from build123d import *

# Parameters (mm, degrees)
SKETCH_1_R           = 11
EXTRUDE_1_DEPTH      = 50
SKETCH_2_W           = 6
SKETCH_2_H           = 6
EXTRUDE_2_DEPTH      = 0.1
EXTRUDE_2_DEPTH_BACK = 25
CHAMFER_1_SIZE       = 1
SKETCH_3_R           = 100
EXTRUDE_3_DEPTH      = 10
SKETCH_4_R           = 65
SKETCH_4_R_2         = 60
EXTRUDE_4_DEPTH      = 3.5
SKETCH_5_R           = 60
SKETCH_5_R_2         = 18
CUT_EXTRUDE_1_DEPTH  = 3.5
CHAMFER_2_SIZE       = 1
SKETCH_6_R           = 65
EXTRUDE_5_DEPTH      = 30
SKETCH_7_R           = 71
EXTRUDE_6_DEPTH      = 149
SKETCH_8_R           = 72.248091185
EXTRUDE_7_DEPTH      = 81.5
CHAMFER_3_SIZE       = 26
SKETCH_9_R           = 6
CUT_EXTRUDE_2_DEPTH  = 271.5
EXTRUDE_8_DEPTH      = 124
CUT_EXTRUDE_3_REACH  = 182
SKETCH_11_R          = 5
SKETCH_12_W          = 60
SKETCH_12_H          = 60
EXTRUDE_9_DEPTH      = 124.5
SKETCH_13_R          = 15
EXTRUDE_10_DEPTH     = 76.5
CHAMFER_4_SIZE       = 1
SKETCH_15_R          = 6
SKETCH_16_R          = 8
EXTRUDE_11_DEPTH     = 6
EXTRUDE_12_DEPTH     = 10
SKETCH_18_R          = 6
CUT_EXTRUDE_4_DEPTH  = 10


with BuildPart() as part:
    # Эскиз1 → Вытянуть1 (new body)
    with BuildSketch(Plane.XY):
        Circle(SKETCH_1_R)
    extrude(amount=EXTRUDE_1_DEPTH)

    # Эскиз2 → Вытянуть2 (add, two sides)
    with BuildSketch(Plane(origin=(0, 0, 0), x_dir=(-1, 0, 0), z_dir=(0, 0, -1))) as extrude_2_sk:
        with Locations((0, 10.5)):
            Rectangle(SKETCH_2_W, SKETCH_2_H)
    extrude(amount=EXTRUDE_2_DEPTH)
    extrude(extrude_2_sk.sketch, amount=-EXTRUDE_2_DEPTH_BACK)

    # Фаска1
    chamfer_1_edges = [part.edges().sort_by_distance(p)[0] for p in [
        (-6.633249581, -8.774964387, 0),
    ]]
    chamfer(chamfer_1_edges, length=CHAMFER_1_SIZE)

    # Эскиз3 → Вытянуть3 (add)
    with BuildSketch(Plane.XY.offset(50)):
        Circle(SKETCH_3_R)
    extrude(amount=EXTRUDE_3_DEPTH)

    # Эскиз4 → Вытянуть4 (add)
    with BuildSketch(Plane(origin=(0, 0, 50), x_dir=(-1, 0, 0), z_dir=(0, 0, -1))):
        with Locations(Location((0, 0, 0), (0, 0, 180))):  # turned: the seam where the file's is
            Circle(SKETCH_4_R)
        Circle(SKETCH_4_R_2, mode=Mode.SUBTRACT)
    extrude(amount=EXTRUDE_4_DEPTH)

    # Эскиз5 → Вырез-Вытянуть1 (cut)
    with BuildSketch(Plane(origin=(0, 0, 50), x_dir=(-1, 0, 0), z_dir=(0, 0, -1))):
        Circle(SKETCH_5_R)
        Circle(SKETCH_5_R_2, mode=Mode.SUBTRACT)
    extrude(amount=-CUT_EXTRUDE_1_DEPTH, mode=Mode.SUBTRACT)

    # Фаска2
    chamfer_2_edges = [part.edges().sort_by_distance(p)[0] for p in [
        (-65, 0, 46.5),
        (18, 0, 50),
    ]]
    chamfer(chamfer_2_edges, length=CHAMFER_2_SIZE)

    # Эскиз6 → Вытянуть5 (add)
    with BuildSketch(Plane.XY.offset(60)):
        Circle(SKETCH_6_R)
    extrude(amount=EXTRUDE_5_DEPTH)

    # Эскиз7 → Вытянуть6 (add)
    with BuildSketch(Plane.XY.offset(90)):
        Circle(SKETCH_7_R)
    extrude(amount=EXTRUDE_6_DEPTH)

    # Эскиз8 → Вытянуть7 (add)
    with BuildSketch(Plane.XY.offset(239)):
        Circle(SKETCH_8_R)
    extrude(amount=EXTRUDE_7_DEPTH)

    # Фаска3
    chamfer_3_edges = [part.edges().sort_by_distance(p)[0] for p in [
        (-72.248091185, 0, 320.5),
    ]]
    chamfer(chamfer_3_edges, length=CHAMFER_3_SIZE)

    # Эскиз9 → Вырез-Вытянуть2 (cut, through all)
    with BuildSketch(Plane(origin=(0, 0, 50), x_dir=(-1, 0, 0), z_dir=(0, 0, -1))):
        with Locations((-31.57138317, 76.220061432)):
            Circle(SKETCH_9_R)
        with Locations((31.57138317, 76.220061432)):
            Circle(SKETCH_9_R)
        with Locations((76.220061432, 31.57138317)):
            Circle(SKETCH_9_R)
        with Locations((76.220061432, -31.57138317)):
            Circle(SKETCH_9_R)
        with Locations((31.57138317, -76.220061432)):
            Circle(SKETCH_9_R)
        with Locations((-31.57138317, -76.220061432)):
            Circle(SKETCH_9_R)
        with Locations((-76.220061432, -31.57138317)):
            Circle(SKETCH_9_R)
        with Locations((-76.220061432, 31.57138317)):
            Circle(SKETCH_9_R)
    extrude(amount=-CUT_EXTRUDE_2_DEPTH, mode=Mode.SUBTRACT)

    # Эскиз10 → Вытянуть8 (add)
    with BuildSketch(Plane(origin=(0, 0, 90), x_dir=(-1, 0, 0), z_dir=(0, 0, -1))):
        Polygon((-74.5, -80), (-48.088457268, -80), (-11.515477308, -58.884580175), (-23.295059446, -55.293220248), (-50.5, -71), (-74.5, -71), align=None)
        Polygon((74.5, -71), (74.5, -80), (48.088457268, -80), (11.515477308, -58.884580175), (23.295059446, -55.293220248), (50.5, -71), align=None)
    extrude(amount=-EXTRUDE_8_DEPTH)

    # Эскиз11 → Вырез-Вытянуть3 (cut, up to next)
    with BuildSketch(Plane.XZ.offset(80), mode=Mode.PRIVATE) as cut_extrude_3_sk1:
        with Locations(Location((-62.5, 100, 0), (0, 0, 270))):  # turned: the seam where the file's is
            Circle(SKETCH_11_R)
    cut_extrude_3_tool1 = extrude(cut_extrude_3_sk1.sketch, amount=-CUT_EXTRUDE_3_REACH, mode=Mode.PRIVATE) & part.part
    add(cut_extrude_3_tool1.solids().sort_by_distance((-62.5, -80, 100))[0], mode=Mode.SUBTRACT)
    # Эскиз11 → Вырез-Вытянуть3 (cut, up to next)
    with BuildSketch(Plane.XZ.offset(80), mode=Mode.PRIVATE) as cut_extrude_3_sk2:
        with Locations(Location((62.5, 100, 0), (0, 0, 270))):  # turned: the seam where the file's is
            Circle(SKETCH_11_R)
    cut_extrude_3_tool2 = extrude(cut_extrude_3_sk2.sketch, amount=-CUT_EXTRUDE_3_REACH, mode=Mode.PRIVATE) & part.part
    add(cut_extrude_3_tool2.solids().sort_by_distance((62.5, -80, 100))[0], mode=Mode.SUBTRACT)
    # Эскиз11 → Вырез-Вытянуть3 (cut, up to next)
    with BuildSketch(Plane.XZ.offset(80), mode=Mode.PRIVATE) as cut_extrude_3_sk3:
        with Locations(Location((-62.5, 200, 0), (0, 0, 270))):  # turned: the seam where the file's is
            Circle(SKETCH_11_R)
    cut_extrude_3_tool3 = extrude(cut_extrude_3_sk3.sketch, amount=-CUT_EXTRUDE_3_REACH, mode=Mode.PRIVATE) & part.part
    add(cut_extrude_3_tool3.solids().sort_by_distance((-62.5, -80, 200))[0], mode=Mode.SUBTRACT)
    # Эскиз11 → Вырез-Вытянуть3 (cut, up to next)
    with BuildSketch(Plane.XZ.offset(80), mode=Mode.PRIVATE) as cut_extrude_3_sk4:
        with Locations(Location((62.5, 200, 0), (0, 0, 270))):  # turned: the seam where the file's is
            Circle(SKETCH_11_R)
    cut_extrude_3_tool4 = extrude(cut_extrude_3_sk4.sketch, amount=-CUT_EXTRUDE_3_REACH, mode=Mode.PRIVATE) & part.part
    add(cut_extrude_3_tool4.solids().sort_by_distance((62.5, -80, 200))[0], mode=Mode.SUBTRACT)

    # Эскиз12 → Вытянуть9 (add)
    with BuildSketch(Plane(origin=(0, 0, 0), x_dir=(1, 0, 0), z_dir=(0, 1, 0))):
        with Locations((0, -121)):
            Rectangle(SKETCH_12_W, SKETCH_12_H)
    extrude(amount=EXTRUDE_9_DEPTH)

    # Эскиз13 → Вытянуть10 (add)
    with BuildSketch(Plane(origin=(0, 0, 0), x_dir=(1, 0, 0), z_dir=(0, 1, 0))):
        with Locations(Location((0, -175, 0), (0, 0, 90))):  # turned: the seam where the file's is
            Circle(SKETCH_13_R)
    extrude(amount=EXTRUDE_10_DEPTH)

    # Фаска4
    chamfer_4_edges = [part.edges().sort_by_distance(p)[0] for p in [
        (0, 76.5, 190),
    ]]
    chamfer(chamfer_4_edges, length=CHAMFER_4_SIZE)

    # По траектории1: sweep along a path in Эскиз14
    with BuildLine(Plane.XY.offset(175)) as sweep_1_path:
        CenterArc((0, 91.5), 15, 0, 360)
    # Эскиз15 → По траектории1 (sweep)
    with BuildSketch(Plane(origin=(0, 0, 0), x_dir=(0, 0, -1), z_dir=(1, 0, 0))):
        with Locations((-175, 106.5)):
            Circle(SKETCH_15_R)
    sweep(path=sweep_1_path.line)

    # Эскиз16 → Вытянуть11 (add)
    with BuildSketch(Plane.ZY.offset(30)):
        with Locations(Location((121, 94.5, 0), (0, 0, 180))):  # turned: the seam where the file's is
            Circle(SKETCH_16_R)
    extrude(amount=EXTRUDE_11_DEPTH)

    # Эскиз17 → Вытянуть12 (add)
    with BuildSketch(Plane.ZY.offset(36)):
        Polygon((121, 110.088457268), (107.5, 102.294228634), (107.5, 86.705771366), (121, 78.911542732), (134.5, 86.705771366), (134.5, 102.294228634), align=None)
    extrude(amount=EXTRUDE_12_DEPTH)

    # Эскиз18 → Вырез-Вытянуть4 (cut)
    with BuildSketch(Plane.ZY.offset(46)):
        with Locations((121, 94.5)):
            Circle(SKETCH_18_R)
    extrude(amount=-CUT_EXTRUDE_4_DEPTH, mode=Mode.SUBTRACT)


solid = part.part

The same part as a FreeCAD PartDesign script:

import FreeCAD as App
import Part
import Sketcher
from FreeCAD import Vector
Q = App.Units.Quantity


def edges_at(feature, points):
    """Names of the edges that pass closest to the given points."""
    edges = feature.Shape.Edges
    near = lambda p: min(range(len(edges)), key=lambda i: edges[i].distToShape(Part.Vertex(*p))[0])
    return sorted({f"Edge{near(p) + 1}" for p in points})

doc = App.newDocument("Part")
params = doc.addObject("Spreadsheet::Sheet", "Params")
for row, (alias, value) in enumerate([
    ("sketch1_diameter", "22 mm"),
    ("pad1_length", "50 mm"),
    ("sketch2_width", "6 mm"),
    ("pad2_length", "0.1 mm"),
    ("pad2_length2", "25 mm"),
    ("chamfer_size", "1 mm"),
    ("sketch3_diameter", "200 mm"),
    ("pad3_length", "10 mm"),
    ("sketch4_diameter", "130 mm"),
    ("sketch4_diameter2", "120 mm"),
    ("pad4_length", "3.5 mm"),
    ("sketch5_diameter", "120 mm"),
    ("sketch5_diameter2", "36 mm"),
    ("pocket1_length", "3.5 mm"),
    ("chamfer2_size", "1 mm"),
    ("sketch6_diameter", "130 mm"),
    ("pad5_length", "30 mm"),
    ("sketch7_diameter", "142 mm"),
    ("pad6_length", "149 mm"),
    ("pad7_length", "81.5 mm"),
    ("chamfer3_size", "26 mm"),
    ("sketch9_diameter", "12 mm"),
    ("sketch10_width", "24 mm"),
    ("sketch10_height", "9 mm"),
    ("pad8_length", "124 mm"),
    ("sketch11_diameter", "10 mm"),
    ("sketch12_diameter", "10 mm"),
    ("sketch13_diameter", "10 mm"),
    ("sketch14_diameter", "10 mm"),
    ("sketch15_width", "60 mm"),
    ("pad9_length", "124.5 mm"),
    ("sketch16_diameter", "30 mm"),
    ("pad10_length", "76.5 mm"),
    ("chamfer4_size", "1 mm"),
    ("sketch17_diameter", "12 mm"),
    ("sketch18_diameter", "30 mm"),
    ("sketch19_diameter", "16 mm"),
    ("pad11_length", "6 mm"),
    ("pad12_length", "10 mm"),
    ("sketch21_diameter", "12 mm"),
    ("pocket7_length", "10 mm"),
], start=1):
    params.set(f"A{row}", alias)
    params.set(f"B{row}", "=" + value)
    params.setAlias(f"B{row}", alias)

body = doc.addObject("PartDesign::Body", "Body")

sketch1 = body.newObject("Sketcher::SketchObject", "Sketch")
sketch1.AttachmentSupport = (doc.getObject("XY_Plane"), [""])
sketch1.MapMode = "FlatFace"
sketch1.addGeometry(Part.Circle(Vector(0, 0, 0), Vector(0, 0, 1), 11), False)
sketch1.addConstraint(Sketcher.Constraint("Coincident", 0, 3, -1, 1))
sketch1.addConstraint(Sketcher.Constraint("Diameter", 0, 22.0))
sketch1.setExpression("Constraints[1]", "Params.sketch1_diameter")
pad1 = body.newObject("PartDesign::Pad", "Pad")
pad1.Profile = sketch1
pad1.setExpression("Length", "Params.pad1_length")

sketch2 = body.newObject("Sketcher::SketchObject", "Sketch001")
sketch2.AttachmentSupport = (doc.getObject("XY_Plane"), [""])
sketch2.MapMode = "FlatFace"
sketch2.addGeometry(Part.LineSegment(Vector(3, 14, 0), Vector(3, 8, 0)), False)
sketch2.addGeometry(Part.LineSegment(Vector(3, 8, 0), Vector(-3, 8, 0)), False)
sketch2.addGeometry(Part.LineSegment(Vector(-3, 8, 0), Vector(-3, 14, 0)), False)
sketch2.addGeometry(Part.LineSegment(Vector(-3, 14, 0), Vector(3, 14, 0)), False)
sketch2.addConstraint(Sketcher.Constraint("Coincident", 0, 2, 1, 1))
sketch2.addConstraint(Sketcher.Constraint("Coincident", 1, 2, 2, 1))
sketch2.addConstraint(Sketcher.Constraint("Coincident", 2, 2, 3, 1))
sketch2.addConstraint(Sketcher.Constraint("Coincident", 3, 2, 0, 1))
sketch2.addConstraint(Sketcher.Constraint("Vertical", 0))
sketch2.addConstraint(Sketcher.Constraint("Horizontal", 1))
sketch2.addConstraint(Sketcher.Constraint("Vertical", 2))
sketch2.addConstraint(Sketcher.Constraint("Horizontal", 3))
sketch2.addConstraint(Sketcher.Constraint("Equal", 3, 0))
sketch2.addConstraint(Sketcher.Constraint("DistanceX", 1, 2, 1, 1, 6.0))
sketch2.addConstraint(Sketcher.Constraint("DistanceX", -1, 1, 0, 2, 3.0))
sketch2.addConstraint(Sketcher.Constraint("DistanceY", -1, 1, 0, 2, 7.5))
sketch2.setExpression("Constraints[9]", "Params.sketch2_width")
pad2 = body.newObject("PartDesign::Pad", "Pad001")
pad2.Profile = sketch2
pad2.Type = "TwoLengths"
pad2.setExpression("Length", "Params.pad2_length")
pad2.setExpression("Length2", "Params.pad2_length2")
pad2.Reversed = True
doc.recompute()

chamfer = body.newObject("PartDesign::Chamfer", "Chamfer")
chamfer.Base = (pad2, edges_at(pad2, [(-6.633, -8.775, 0)]))
chamfer.setExpression("Size", "Params.chamfer_size")

sketch3 = body.newObject("Sketcher::SketchObject", "Sketch002")
sketch3.AttachmentSupport = (doc.getObject("XY_Plane"), [""])
sketch3.MapMode = "FlatFace"
sketch3.AttachmentOffset = App.Placement(Vector(0, 0, 50), App.Rotation())
sketch3.addGeometry(Part.Circle(Vector(0, 0, 0), Vector(0, 0, 1), 100), False)
sketch3.addConstraint(Sketcher.Constraint("Coincident", 0, 3, -1, 1))
sketch3.addConstraint(Sketcher.Constraint("Diameter", 0, 200.0))
sketch3.setExpression("Constraints[1]", "Params.sketch3_diameter")
pad3 = body.newObject("PartDesign::Pad", "Pad002")
pad3.Profile = sketch3
pad3.setExpression("Length", "Params.pad3_length")

sketch4 = body.newObject("Sketcher::SketchObject", "Sketch003")
sketch4.AttachmentSupport = (doc.getObject("XY_Plane"), [""])
sketch4.MapMode = "FlatFace"
sketch4.AttachmentOffset = App.Placement(Vector(0, 0, 50), App.Rotation())
sketch4.addGeometry(Part.Circle(Vector(0, 0, 0), Vector(0, 0, 1), 65), False)
sketch4.addGeometry(Part.Circle(Vector(0, 0, 0), Vector(0, 0, 1), 60), False)
sketch4.addConstraint(Sketcher.Constraint("Coincident", 0, 3, -1, 1))
sketch4.addConstraint(Sketcher.Constraint("Coincident", 1, 3, -1, 1))
sketch4.addConstraint(Sketcher.Constraint("Diameter", 0, 130.0))
sketch4.addConstraint(Sketcher.Constraint("Diameter", 1, 120.0))
sketch4.setExpression("Constraints[2]", "Params.sketch4_diameter")
sketch4.setExpression("Constraints[3]", "Params.sketch4_diameter2")
pad4 = body.newObject("PartDesign::Pad", "Pad003")
pad4.Profile = sketch4
pad4.setExpression("Length", "Params.pad4_length")
pad4.Reversed = True

sketch5 = body.newObject("Sketcher::SketchObject", "Sketch004")
sketch5.AttachmentSupport = (doc.getObject("XY_Plane"), [""])
sketch5.MapMode = "FlatFace"
sketch5.AttachmentOffset = App.Placement(Vector(0, 0, 50), App.Rotation())
sketch5.addGeometry(Part.Circle(Vector(0, 0, 0), Vector(0, 0, 1), 60), False)
sketch5.addGeometry(Part.Circle(Vector(0, 0, 0), Vector(0, 0, 1), 18), False)
sketch5.addConstraint(Sketcher.Constraint("Coincident", 0, 3, -1, 1))
sketch5.addConstraint(Sketcher.Constraint("Coincident", 1, 3, -1, 1))
sketch5.addConstraint(Sketcher.Constraint("Diameter", 0, 120.0))
sketch5.addConstraint(Sketcher.Constraint("Diameter", 1, 36.0))
sketch5.setExpression("Constraints[2]", "Params.sketch5_diameter")
sketch5.setExpression("Constraints[3]", "Params.sketch5_diameter2")
pocket1 = body.newObject("PartDesign::Pocket", "Pocket")
pocket1.Profile = sketch5
pocket1.setExpression("Length", "Params.pocket1_length")
pocket1.Reversed = True
doc.recompute()

chamfer2 = body.newObject("PartDesign::Chamfer", "Chamfer001")
chamfer2.Base = (pocket1, edges_at(pocket1, [(-65, 0, 46.5), (18, 0, 50)]))
chamfer2.setExpression("Size", "Params.chamfer2_size")

sketch6 = body.newObject("Sketcher::SketchObject", "Sketch005")
sketch6.AttachmentSupport = (doc.getObject("XY_Plane"), [""])
sketch6.MapMode = "FlatFace"
sketch6.AttachmentOffset = App.Placement(Vector(0, 0, 60), App.Rotation())
sketch6.addGeometry(Part.Circle(Vector(0, 0, 0), Vector(0, 0, 1), 65), False)
sketch6.addConstraint(Sketcher.Constraint("Coincident", 0, 3, -1, 1))
sketch6.addConstraint(Sketcher.Constraint("Diameter", 0, 130.0))
sketch6.setExpression("Constraints[1]", "Params.sketch6_diameter")
pad5 = body.newObject("PartDesign::Pad", "Pad004")
pad5.Profile = sketch6
pad5.setExpression("Length", "Params.pad5_length")

sketch7 = body.newObject("Sketcher::SketchObject", "Sketch006")
sketch7.AttachmentSupport = (doc.getObject("XY_Plane"), [""])
sketch7.MapMode = "FlatFace"
sketch7.AttachmentOffset = App.Placement(Vector(0, 0, 90), App.Rotation())
sketch7.addGeometry(Part.Circle(Vector(0, 0, 0), Vector(0, 0, 1), 71), False)
sketch7.addConstraint(Sketcher.Constraint("Coincident", 0, 3, -1, 1))
sketch7.addConstraint(Sketcher.Constraint("Diameter", 0, 142.0))
sketch7.setExpression("Constraints[1]", "Params.sketch7_diameter")
pad6 = body.newObject("PartDesign::Pad", "Pad005")
pad6.Profile = sketch7
pad6.setExpression("Length", "Params.pad6_length")

sketch8 = body.newObject("Sketcher::SketchObject", "Sketch007")
sketch8.AttachmentSupport = (doc.getObject("XY_Plane"), [""])
sketch8.MapMode = "FlatFace"
sketch8.AttachmentOffset = App.Placement(Vector(0, 0, 239), App.Rotation())
sketch8.addGeometry(Part.Circle(Vector(0, 0, 0), Vector(0, 0, 1), 72), False)
sketch8.addConstraint(Sketcher.Constraint("Coincident", 0, 3, -1, 1))
sketch8.addConstraint(Sketcher.Constraint("Diameter", 0, 144.496182))
pad7 = body.newObject("PartDesign::Pad", "Pad006")
pad7.Profile = sketch8
pad7.setExpression("Length", "Params.pad7_length")
doc.recompute()

chamfer3 = body.newObject("PartDesign::Chamfer", "Chamfer002")
chamfer3.Base = (pad7, edges_at(pad7, [(-72.248, 0, 320.5)]))
chamfer3.setExpression("Size", "Params.chamfer3_size")

sketch9 = body.newObject("Sketcher::SketchObject", "Sketch008")
sketch9.AttachmentSupport = (doc.getObject("XY_Plane"), [""])
sketch9.MapMode = "FlatFace"
sketch9.AttachmentOffset = App.Placement(Vector(0, 0, 50), App.Rotation())
sketch9.addGeometry(Part.Circle(Vector(32, 76, 0), Vector(0, 0, 1), 6), False)
sketch9.addGeometry(Part.Circle(Vector(-32, 76, 0), Vector(0, 0, 1), 6), False)
sketch9.addGeometry(Part.Circle(Vector(-76, 32, 0), Vector(0, 0, 1), 6), False)
sketch9.addGeometry(Part.Circle(Vector(-76, -32, 0), Vector(0, 0, 1), 6), False)
sketch9.addGeometry(Part.Circle(Vector(-32, -76, 0), Vector(0, 0, 1), 6), False)
sketch9.addGeometry(Part.Circle(Vector(32, -76, 0), Vector(0, 0, 1), 6), False)
sketch9.addGeometry(Part.Circle(Vector(76, -32, 0), Vector(0, 0, 1), 6), False)
sketch9.addGeometry(Part.Circle(Vector(76, 32, 0), Vector(0, 0, 1), 6), False)
sketch9.addConstraint(Sketcher.Constraint("Equal", 0, 1))
sketch9.addConstraint(Sketcher.Constraint("Equal", 1, 2))
sketch9.addConstraint(Sketcher.Constraint("Equal", 2, 3))
sketch9.addConstraint(Sketcher.Constraint("Equal", 3, 4))
sketch9.addConstraint(Sketcher.Constraint("Equal", 4, 5))
sketch9.addConstraint(Sketcher.Constraint("Equal", 5, 6))
sketch9.addConstraint(Sketcher.Constraint("Equal", 6, 7))
sketch9.addConstraint(Sketcher.Constraint("Symmetric", 0, 3, 4, 3, -1, 1))
sketch9.addConstraint(Sketcher.Constraint("Symmetric", 1, 3, 5, 3, -1, 1))
sketch9.addConstraint(Sketcher.Constraint("Symmetric", 2, 3, 6, 3, -1, 1))
sketch9.addConstraint(Sketcher.Constraint("Symmetric", 3, 3, 7, 3, -1, 1))
sketch9.addConstraint(Sketcher.Constraint("Symmetric", 0, 3, 1, 3, -2))
sketch9.addConstraint(Sketcher.Constraint("Symmetric", 3, 3, 6, 3, -2))
sketch9.addConstraint(Sketcher.Constraint("Diameter", 0, 12.0))
sketch9.addConstraint(Sketcher.Constraint("DistanceY", -1, 1, 0, 3, 76.220061))
sketch9.addConstraint(Sketcher.Constraint("DistanceX", 2, 3, -1, 1, 76.220061))
sketch9.addConstraint(Sketcher.Constraint("DistanceX", 2, 3, 1, 3, 44.648678))
sketch9.addConstraint(Sketcher.Constraint("DistanceY", 2, 3, 1, 3, 44.648678))
sketch9.setExpression("Constraints[13]", "Params.sketch9_diameter")
pocket2 = body.newObject("PartDesign::Pocket", "Pocket001")
pocket2.Profile = sketch9
pocket2.Type = "ThroughAll"
pocket2.Reversed = True

sketch10 = body.newObject("Sketcher::SketchObject", "Sketch009")
sketch10.AttachmentSupport = (doc.getObject("XY_Plane"), [""])
sketch10.MapMode = "FlatFace"
sketch10.AttachmentOffset = App.Placement(Vector(0, 0, 90), App.Rotation())
sketch10.addGeometry(Part.LineSegment(Vector(74, -80, 0), Vector(48, -80, 0)), False)
sketch10.addGeometry(Part.LineSegment(Vector(48, -80, 0), Vector(12, -59, 0)), False)
sketch10.addGeometry(Part.LineSegment(Vector(12, -59, 0), Vector(23, -55, 0)), False)
sketch10.addGeometry(Part.LineSegment(Vector(23, -55, 0), Vector(50, -71, 0)), False)
sketch10.addGeometry(Part.LineSegment(Vector(50, -71, 0), Vector(74, -71, 0)), False)
sketch10.addGeometry(Part.LineSegment(Vector(74, -71, 0), Vector(74, -80, 0)), False)
sketch10.addGeometry(Part.LineSegment(Vector(-74, -80, 0), Vector(-74, -71, 0)), False)
sketch10.addGeometry(Part.LineSegment(Vector(-74, -71, 0), Vector(-50, -71, 0)), False)
sketch10.addGeometry(Part.LineSegment(Vector(-50, -71, 0), Vector(-23, -55, 0)), False)
sketch10.addGeometry(Part.LineSegment(Vector(-23, -55, 0), Vector(-12, -59, 0)), False)
sketch10.addGeometry(Part.LineSegment(Vector(-12, -59, 0), Vector(-48, -80, 0)), False)
sketch10.addGeometry(Part.LineSegment(Vector(-48, -80, 0), Vector(-74, -80, 0)), False)
sketch10.addConstraint(Sketcher.Constraint("Coincident", 0, 2, 1, 1))
sketch10.addConstraint(Sketcher.Constraint("Coincident", 1, 2, 2, 1))
sketch10.addConstraint(Sketcher.Constraint("Coincident", 2, 2, 3, 1))
sketch10.addConstraint(Sketcher.Constraint("Coincident", 3, 2, 4, 1))
sketch10.addConstraint(Sketcher.Constraint("Coincident", 4, 2, 5, 1))
sketch10.addConstraint(Sketcher.Constraint("Coincident", 5, 2, 0, 1))
sketch10.addConstraint(Sketcher.Constraint("Coincident", 6, 2, 7, 1))
sketch10.addConstraint(Sketcher.Constraint("Coincident", 7, 2, 8, 1))
sketch10.addConstraint(Sketcher.Constraint("Coincident", 8, 2, 9, 1))
sketch10.addConstraint(Sketcher.Constraint("Coincident", 9, 2, 10, 1))
sketch10.addConstraint(Sketcher.Constraint("Coincident", 10, 2, 11, 1))
sketch10.addConstraint(Sketcher.Constraint("Coincident", 11, 2, 6, 1))
sketch10.addConstraint(Sketcher.Constraint("Horizontal", 0))
sketch10.addConstraint(Sketcher.Constraint("Horizontal", 4))
sketch10.addConstraint(Sketcher.Constraint("Vertical", 5))
sketch10.addConstraint(Sketcher.Constraint("Vertical", 6))
sketch10.addConstraint(Sketcher.Constraint("Horizontal", 7))
sketch10.addConstraint(Sketcher.Constraint("Horizontal", 11))
sketch10.addConstraint(Sketcher.Constraint("Symmetric", 4, 2, 6, 2, -2))
sketch10.addConstraint(Sketcher.Constraint("Symmetric", 2, 2, 8, 2, -2))
sketch10.addConstraint(Sketcher.Constraint("Symmetric", 1, 2, 9, 2, -2))
sketch10.addConstraint(Sketcher.Constraint("Symmetric", 0, 2, 10, 2, -2))
sketch10.addConstraint(Sketcher.Constraint("Parallel", 1, 3))
sketch10.addConstraint(Sketcher.Constraint("Parallel", 8, 10))
sketch10.addConstraint(Sketcher.Constraint("DistanceX", 4, 1, 4, 2, 24.0))
sketch10.addConstraint(Sketcher.Constraint("DistanceY", 5, 2, 5, 1, 9.0))
sketch10.addConstraint(Sketcher.Constraint("Angle", 1, Q("150 deg")))
sketch10.addConstraint(Sketcher.Constraint("DistanceY", 0, 2, -1, 1, 80.0))
sketch10.addConstraint(Sketcher.Constraint("DistanceX", 6, 2, 3, 2, 125.0))
sketch10.addConstraint(Sketcher.Constraint("Distance", 1, 42.23084))
sketch10.addConstraint(Sketcher.Constraint("Distance", 3, 31.41356))
sketch10.addConstraint(Sketcher.Constraint("DistanceX", 0, 2, 0, 1, 26.411543))
sketch10.setExpression("Constraints[24]", "Params.sketch10_width")
sketch10.setExpression("Constraints[25]", "Params.sketch10_height")
pad8 = body.newObject("PartDesign::Pad", "Pad007")
pad8.Profile = sketch10
pad8.setExpression("Length", "Params.pad8_length")

sketch11 = body.newObject("Sketcher::SketchObject", "Sketch010")
sketch11.AttachmentSupport = (doc.getObject("XZ_Plane"), [""])
sketch11.MapMode = "FlatFace"
sketch11.AttachmentOffset = App.Placement(Vector(0, 0, 80), App.Rotation())
sketch11.addGeometry(Part.Circle(Vector(-62, 100, 0), Vector(0, 0, 1), 5), False)
sketch11.addConstraint(Sketcher.Constraint("Diameter", 0, 10.0))
sketch11.addConstraint(Sketcher.Constraint("DistanceY", -1, 1, 0, 3, 100.0))
sketch11.addConstraint(Sketcher.Constraint("DistanceX", 0, 3, -1, 1, 62.5))
sketch11.setExpression("Constraints[0]", "Params.sketch11_diameter")
pocket3 = body.newObject("PartDesign::Pocket", "Pocket002")
pocket3.Profile = sketch11
pocket3.Type = "UpToFirst"

sketch12 = body.newObject("Sketcher::SketchObject", "Sketch011")
sketch12.AttachmentSupport = (doc.getObject("XZ_Plane"), [""])
sketch12.MapMode = "FlatFace"
sketch12.AttachmentOffset = App.Placement(Vector(0, 0, 80), App.Rotation())
sketch12.addGeometry(Part.Circle(Vector(62, 100, 0), Vector(0, 0, 1), 5), False)
sketch12.addConstraint(Sketcher.Constraint("Diameter", 0, 10.0))
sketch12.addConstraint(Sketcher.Constraint("DistanceY", -1, 1, 0, 3, 100.0))
sketch12.addConstraint(Sketcher.Constraint("DistanceX", -1, 1, 0, 3, 62.5))
sketch12.setExpression("Constraints[0]", "Params.sketch12_diameter")
pocket4 = body.newObject("PartDesign::Pocket", "Pocket003")
pocket4.Profile = sketch12
pocket4.Type = "UpToFirst"

sketch13 = body.newObject("Sketcher::SketchObject", "Sketch012")
sketch13.AttachmentSupport = (doc.getObject("XZ_Plane"), [""])
sketch13.MapMode = "FlatFace"
sketch13.AttachmentOffset = App.Placement(Vector(0, 0, 80), App.Rotation())
sketch13.addGeometry(Part.Circle(Vector(-62, 200, 0), Vector(0, 0, 1), 5), False)
sketch13.addConstraint(Sketcher.Constraint("Diameter", 0, 10.0))
sketch13.addConstraint(Sketcher.Constraint("DistanceY", -1, 1, 0, 3, 200.0))
sketch13.addConstraint(Sketcher.Constraint("DistanceX", 0, 3, -1, 1, 62.5))
sketch13.setExpression("Constraints[0]", "Params.sketch13_diameter")
pocket5 = body.newObject("PartDesign::Pocket", "Pocket004")
pocket5.Profile = sketch13
pocket5.Type = "UpToFirst"

sketch14 = body.newObject("Sketcher::SketchObject", "Sketch013")
sketch14.AttachmentSupport = (doc.getObject("XZ_Plane"), [""])
sketch14.MapMode = "FlatFace"
sketch14.AttachmentOffset = App.Placement(Vector(0, 0, 80), App.Rotation())
sketch14.addGeometry(Part.Circle(Vector(62, 200, 0), Vector(0, 0, 1), 5), False)
sketch14.addConstraint(Sketcher.Constraint("Diameter", 0, 10.0))
sketch14.addConstraint(Sketcher.Constraint("DistanceY", -1, 1, 0, 3, 200.0))
sketch14.addConstraint(Sketcher.Constraint("DistanceX", -1, 1, 0, 3, 62.5))
sketch14.setExpression("Constraints[0]", "Params.sketch14_diameter")
pocket6 = body.newObject("PartDesign::Pocket", "Pocket005")
pocket6.Profile = sketch14
pocket6.Type = "UpToFirst"

sketch15 = body.newObject("Sketcher::SketchObject", "Sketch014")
sketch15.AttachmentSupport = (doc.getObject("XZ_Plane"), [""])
sketch15.MapMode = "FlatFace"
sketch15.addGeometry(Part.LineSegment(Vector(-30, 91, 0), Vector(-30, 151, 0)), False)
sketch15.addGeometry(Part.LineSegment(Vector(-30, 151, 0), Vector(30, 151, 0)), False)
sketch15.addGeometry(Part.LineSegment(Vector(30, 151, 0), Vector(30, 91, 0)), False)
sketch15.addGeometry(Part.LineSegment(Vector(30, 91, 0), Vector(-30, 91, 0)), False)
sketch15.addConstraint(Sketcher.Constraint("Coincident", 0, 2, 1, 1))
sketch15.addConstraint(Sketcher.Constraint("Coincident", 1, 2, 2, 1))
sketch15.addConstraint(Sketcher.Constraint("Coincident", 2, 2, 3, 1))
sketch15.addConstraint(Sketcher.Constraint("Coincident", 3, 2, 0, 1))
sketch15.addConstraint(Sketcher.Constraint("Vertical", 0))
sketch15.addConstraint(Sketcher.Constraint("Horizontal", 1))
sketch15.addConstraint(Sketcher.Constraint("Vertical", 2))
sketch15.addConstraint(Sketcher.Constraint("Horizontal", 3))
sketch15.addConstraint(Sketcher.Constraint("Equal", 3, 0))
sketch15.addConstraint(Sketcher.Constraint("DistanceX", 1, 1, 1, 2, 60.0))
sketch15.addConstraint(Sketcher.Constraint("DistanceX", 0, 2, -1, 1, 30.0))
sketch15.addConstraint(Sketcher.Constraint("DistanceY", -1, 1, 0, 2, 151.0))
sketch15.setExpression("Constraints[9]", "Params.sketch15_width")
pad9 = body.newObject("PartDesign::Pad", "Pad008")
pad9.Profile = sketch15
pad9.setExpression("Length", "Params.pad9_length")
pad9.Reversed = True

sketch16 = body.newObject("Sketcher::SketchObject", "Sketch015")
sketch16.AttachmentSupport = (doc.getObject("XZ_Plane"), [""])
sketch16.MapMode = "FlatFace"
sketch16.addGeometry(Part.Circle(Vector(0, 175, 0), Vector(0, 0, 1), 15), False)
sketch16.addConstraint(Sketcher.Constraint("PointOnObject", 0, 3, -2))
sketch16.addConstraint(Sketcher.Constraint("Diameter", 0, 30.0))
sketch16.addConstraint(Sketcher.Constraint("DistanceY", -1, 1, 0, 3, 175.0))
sketch16.setExpression("Constraints[1]", "Params.sketch16_diameter")
pad10 = body.newObject("PartDesign::Pad", "Pad009")
pad10.Profile = sketch16
pad10.setExpression("Length", "Params.pad10_length")
pad10.Reversed = True
doc.recompute()

chamfer4 = body.newObject("PartDesign::Chamfer", "Chamfer003")
chamfer4.Base = (pad10, edges_at(pad10, [(0, 76.5, 190)]))
chamfer4.setExpression("Size", "Params.chamfer4_size")

sketch17 = body.newObject("Sketcher::SketchObject", "Sketch016")
sketch17.AttachmentSupport = (doc.getObject("YZ_Plane"), [""])
sketch17.MapMode = "FlatFace"
sketch17.addGeometry(Part.Circle(Vector(106, 175, 0), Vector(0, 0, 1), 6), False)
sketch17.addConstraint(Sketcher.Constraint("Diameter", 0, 12.0))
sketch17.addConstraint(Sketcher.Constraint("DistanceY", -1, 1, 0, 3, 175.0))
sketch17.addConstraint(Sketcher.Constraint("DistanceX", -1, 1, 0, 3, 106.5))
sketch17.setExpression("Constraints[0]", "Params.sketch17_diameter")

sketch18 = body.newObject("Sketcher::SketchObject", "Sketch017")
sketch18.AttachmentSupport = (doc.getObject("XY_Plane"), [""])
sketch18.MapMode = "FlatFace"
sketch18.AttachmentOffset = App.Placement(Vector(0, 0, 175), App.Rotation())
sketch18.addGeometry(Part.Circle(Vector(0, 92, 0), Vector(0, 0, 1), 15), False)
sketch18.addConstraint(Sketcher.Constraint("PointOnObject", 0, 3, -2))
sketch18.addConstraint(Sketcher.Constraint("Diameter", 0, 30.0))
sketch18.addConstraint(Sketcher.Constraint("DistanceY", -1, 1, 0, 3, 91.5))
sketch18.setExpression("Constraints[1]", "Params.sketch18_diameter")
doc.recompute()

additivepipe = body.newObject("PartDesign::AdditivePipe", "AdditivePipe")
additivepipe.Profile = sketch17
additivepipe.Spine = (sketch18, ["Edge1"])

sketch19 = body.newObject("Sketcher::SketchObject", "Sketch018")
sketch19.AttachmentSupport = (doc.getObject("YZ_Plane"), [""])
sketch19.MapMode = "FlatFace"
sketch19.AttachmentOffset = App.Placement(Vector(0, 0, -30), App.Rotation())
sketch19.addGeometry(Part.Circle(Vector(94, 121, 0), Vector(0, 0, 1), 8), False)
sketch19.addConstraint(Sketcher.Constraint("Diameter", 0, 16.0))
sketch19.addConstraint(Sketcher.Constraint("DistanceY", -1, 1, 0, 3, 121.0))
sketch19.addConstraint(Sketcher.Constraint("DistanceX", -1, 1, 0, 3, 94.5))
sketch19.setExpression("Constraints[0]", "Params.sketch19_diameter")
pad11 = body.newObject("PartDesign::Pad", "Pad010")
pad11.Profile = sketch19
pad11.setExpression("Length", "Params.pad11_length")
pad11.Reversed = True

sketch20 = body.newObject("Sketcher::SketchObject", "Sketch019")
sketch20.AttachmentSupport = (doc.getObject("YZ_Plane"), [""])
sketch20.MapMode = "FlatFace"
sketch20.AttachmentOffset = App.Placement(Vector(0, 0, -36), App.Rotation())
sketch20.addGeometry(Part.LineSegment(Vector(110, 121, 0), Vector(102, 108, 0)), False)
sketch20.addGeometry(Part.LineSegment(Vector(102, 108, 0), Vector(87, 108, 0)), False)
sketch20.addGeometry(Part.LineSegment(Vector(87, 108, 0), Vector(79, 121, 0)), False)
sketch20.addGeometry(Part.LineSegment(Vector(79, 121, 0), Vector(87, 134, 0)), False)
sketch20.addGeometry(Part.LineSegment(Vector(87, 134, 0), Vector(102, 134, 0)), False)
sketch20.addGeometry(Part.LineSegment(Vector(102, 134, 0), Vector(110, 121, 0)), False)
sketch20.addConstraint(Sketcher.Constraint("Coincident", 0, 2, 1, 1))
sketch20.addConstraint(Sketcher.Constraint("Coincident", 1, 2, 2, 1))
sketch20.addConstraint(Sketcher.Constraint("Coincident", 2, 2, 3, 1))
sketch20.addConstraint(Sketcher.Constraint("Coincident", 3, 2, 4, 1))
sketch20.addConstraint(Sketcher.Constraint("Coincident", 4, 2, 5, 1))
sketch20.addConstraint(Sketcher.Constraint("Coincident", 5, 2, 0, 1))
sketch20.addConstraint(Sketcher.Constraint("Horizontal", 1))
sketch20.addConstraint(Sketcher.Constraint("Horizontal", 4))
sketch20.addConstraint(Sketcher.Constraint("Parallel", 0, 3))
sketch20.addConstraint(Sketcher.Constraint("Parallel", 2, 5))
sketch20.addConstraint(Sketcher.Constraint("Horizontal", 2, 2, 5, 2))
sketch20.addConstraint(Sketcher.Constraint("Vertical", 1, 2, 3, 2))
sketch20.addConstraint(Sketcher.Constraint("Vertical", 0, 2, 4, 2))
sketch20.addConstraint(Sketcher.Constraint("Angle", 0, Q("-120 deg")))
sketch20.addConstraint(Sketcher.Constraint("DistanceY", -1, 1, 2, 2, 121.0))
sketch20.addConstraint(Sketcher.Constraint("DistanceY", 1, 2, 3, 2, 27.0))
sketch20.addConstraint(Sketcher.Constraint("DistanceX", 1, 2, 1, 1, 15.588457))
sketch20.addConstraint(Sketcher.Constraint("DistanceX", -1, 1, 0, 2, 102.294229))
pad12 = body.newObject("PartDesign::Pad", "Pad011")
pad12.Profile = sketch20
pad12.setExpression("Length", "Params.pad12_length")
pad12.Reversed = True

sketch21 = body.newObject("Sketcher::SketchObject", "Sketch020")
sketch21.AttachmentSupport = (doc.getObject("YZ_Plane"), [""])
sketch21.MapMode = "FlatFace"
sketch21.AttachmentOffset = App.Placement(Vector(0, 0, -46), App.Rotation())
sketch21.addGeometry(Part.Circle(Vector(94, 121, 0), Vector(0, 0, 1), 6), False)
sketch21.addConstraint(Sketcher.Constraint("Diameter", 0, 12.0))
sketch21.addConstraint(Sketcher.Constraint("DistanceY", -1, 1, 0, 3, 121.0))
sketch21.addConstraint(Sketcher.Constraint("DistanceX", -1, 1, 0, 3, 94.5))
sketch21.setExpression("Constraints[0]", "Params.sketch21_diameter")
pocket7 = body.newObject("PartDesign::Pocket", "Pocket006")
pocket7.Profile = sketch21
pocket7.setExpression("Length", "Params.pocket7_length")
pocket7.Reversed = True

doc.recompute()
